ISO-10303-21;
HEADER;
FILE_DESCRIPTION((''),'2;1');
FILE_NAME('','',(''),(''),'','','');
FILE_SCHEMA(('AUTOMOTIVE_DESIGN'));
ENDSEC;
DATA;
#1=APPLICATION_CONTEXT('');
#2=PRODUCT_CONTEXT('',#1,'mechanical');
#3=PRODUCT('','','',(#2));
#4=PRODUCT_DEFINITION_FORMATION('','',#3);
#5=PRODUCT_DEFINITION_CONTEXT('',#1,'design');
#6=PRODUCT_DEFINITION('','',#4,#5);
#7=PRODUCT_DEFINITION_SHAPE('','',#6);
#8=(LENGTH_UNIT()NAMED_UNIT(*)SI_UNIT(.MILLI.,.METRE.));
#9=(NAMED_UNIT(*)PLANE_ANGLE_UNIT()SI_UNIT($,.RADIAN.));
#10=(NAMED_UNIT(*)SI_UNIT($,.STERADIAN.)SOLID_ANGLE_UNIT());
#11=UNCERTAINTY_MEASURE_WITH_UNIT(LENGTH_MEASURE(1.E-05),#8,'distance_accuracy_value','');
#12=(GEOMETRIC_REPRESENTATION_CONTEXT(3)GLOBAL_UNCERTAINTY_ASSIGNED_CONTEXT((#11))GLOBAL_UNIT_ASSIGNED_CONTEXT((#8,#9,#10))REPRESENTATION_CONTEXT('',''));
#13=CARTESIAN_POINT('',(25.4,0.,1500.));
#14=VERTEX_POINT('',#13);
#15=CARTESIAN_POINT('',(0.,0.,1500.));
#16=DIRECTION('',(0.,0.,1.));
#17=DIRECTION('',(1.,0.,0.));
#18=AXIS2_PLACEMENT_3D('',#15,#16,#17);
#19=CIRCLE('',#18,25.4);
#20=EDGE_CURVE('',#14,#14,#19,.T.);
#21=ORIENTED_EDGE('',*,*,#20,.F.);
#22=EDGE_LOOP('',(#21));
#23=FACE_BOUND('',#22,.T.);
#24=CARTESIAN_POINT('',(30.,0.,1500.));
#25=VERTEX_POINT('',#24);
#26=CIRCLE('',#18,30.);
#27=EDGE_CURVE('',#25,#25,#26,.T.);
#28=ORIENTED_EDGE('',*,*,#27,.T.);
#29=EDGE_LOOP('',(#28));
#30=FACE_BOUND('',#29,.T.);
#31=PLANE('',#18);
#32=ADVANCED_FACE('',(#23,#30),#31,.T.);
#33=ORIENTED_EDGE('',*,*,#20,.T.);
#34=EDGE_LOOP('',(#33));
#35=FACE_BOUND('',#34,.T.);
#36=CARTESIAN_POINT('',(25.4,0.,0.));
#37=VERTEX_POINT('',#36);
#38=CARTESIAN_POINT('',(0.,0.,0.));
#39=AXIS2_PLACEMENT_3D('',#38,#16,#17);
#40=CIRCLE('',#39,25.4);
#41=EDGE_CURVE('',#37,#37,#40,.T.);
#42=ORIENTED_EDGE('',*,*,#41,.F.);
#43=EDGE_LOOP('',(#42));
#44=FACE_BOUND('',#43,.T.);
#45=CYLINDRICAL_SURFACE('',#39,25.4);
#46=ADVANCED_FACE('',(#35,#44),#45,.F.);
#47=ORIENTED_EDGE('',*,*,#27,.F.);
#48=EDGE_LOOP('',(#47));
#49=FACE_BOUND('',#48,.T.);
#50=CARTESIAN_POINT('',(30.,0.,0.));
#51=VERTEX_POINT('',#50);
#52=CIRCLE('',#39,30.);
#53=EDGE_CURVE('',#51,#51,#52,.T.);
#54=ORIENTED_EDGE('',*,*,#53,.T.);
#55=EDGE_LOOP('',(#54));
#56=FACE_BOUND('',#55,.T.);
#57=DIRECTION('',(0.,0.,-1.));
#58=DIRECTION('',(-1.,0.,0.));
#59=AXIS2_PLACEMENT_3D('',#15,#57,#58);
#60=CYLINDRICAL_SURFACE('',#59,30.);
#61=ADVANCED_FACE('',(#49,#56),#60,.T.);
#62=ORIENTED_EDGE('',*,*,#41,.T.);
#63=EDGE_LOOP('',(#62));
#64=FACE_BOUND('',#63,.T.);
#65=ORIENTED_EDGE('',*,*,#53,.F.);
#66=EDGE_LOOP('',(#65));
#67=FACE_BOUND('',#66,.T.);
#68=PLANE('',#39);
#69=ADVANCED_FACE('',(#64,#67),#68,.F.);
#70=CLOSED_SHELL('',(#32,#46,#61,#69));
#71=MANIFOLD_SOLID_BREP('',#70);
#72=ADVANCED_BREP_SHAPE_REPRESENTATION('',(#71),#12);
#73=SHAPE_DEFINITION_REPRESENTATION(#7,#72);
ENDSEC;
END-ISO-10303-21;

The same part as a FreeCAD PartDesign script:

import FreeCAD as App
import Part
import Sketcher
Q = App.Units.Quantity

doc = App.newDocument("Part")
body = doc.addObject("PartDesign::Body", "Body")

# Sketch on XY plane
sketch1 = doc.addObject("Sketcher::SketchObject", "Sketch")
body.addObject(sketch1)
sketch1.AttachmentSupport = (doc.XY_Plane, [""])
sketch1.MapMode = "FlatFace"
sketch1.addGeometry(Part.Circle(App.Vector(0, 0, 0), App.Vector(0, 0, 1), 30), False)
sketch1.addConstraint(Sketcher.Constraint("Coincident", 0, 3, -1, 1))
sketch1.addConstraint(Sketcher.Constraint("Diameter", 0, Q("60 mm")))
pad1 = doc.addObject("PartDesign::Pad", "Pad")
body.addObject(pad1)
pad1.Profile = sketch1
pad1.Length = 1500

# Sketch on XY plane
sketch2 = doc.addObject("Sketcher::SketchObject", "Sketch001")
body.addObject(sketch2)
sketch2.AttachmentSupport = (doc.XY_Plane, [""])
sketch2.MapMode = "FlatFace"
sketch2.AttachmentOffset = App.Placement(App.Vector(0, 0, 1500), App.Rotation())
sketch2.addGeometry(Part.Circle(App.Vector(0, 0, 0), App.Vector(0, 0, 1), 25), False)
sketch2.addConstraint(Sketcher.Constraint("Coincident", 0, 3, -1, 1))
sketch2.addConstraint(Sketcher.Constraint("Diameter", 0, Q("50.8 mm")))
pocket1 = doc.addObject("PartDesign::Pocket", "Pocket")
body.addObject(pocket1)
pocket1.Profile = sketch2
pocket1.Type = "ThroughAll"

doc.recompute()
